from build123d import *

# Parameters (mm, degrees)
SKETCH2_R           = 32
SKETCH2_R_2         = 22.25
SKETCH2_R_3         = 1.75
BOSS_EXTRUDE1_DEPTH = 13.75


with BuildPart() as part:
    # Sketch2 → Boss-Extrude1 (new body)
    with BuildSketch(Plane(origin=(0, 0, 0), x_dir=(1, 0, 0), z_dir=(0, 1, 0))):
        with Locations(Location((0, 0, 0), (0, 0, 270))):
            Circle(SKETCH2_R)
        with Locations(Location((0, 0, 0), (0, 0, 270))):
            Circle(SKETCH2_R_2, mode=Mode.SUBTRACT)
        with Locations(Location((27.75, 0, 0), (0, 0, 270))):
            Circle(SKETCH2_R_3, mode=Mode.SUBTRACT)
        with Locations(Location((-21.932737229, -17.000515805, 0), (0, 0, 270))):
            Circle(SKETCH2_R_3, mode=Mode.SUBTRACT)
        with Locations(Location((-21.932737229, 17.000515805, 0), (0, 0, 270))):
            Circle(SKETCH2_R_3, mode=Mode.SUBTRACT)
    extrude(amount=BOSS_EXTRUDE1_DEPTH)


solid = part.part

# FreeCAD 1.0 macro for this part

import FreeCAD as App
import Part
import Sketcher
from FreeCAD import Vector
Q = App.Units.Quantity

doc = App.newDocument("Part")
body = doc.addObject("PartDesign::Body", "Body")

sketch1 = doc.addObject("Sketcher::SketchObject", "Sketch")
body.addObject(sketch1)
sketch1.AttachmentSupport = (doc.XZ_Plane, [""])
sketch1.MapMode = "FlatFace"
sketch1.addGeometry(Part.Circle(Vector(0, 0, 0), Vector(0, 0, 1), 32), False)
sketch1.addGeometry(Part.Circle(Vector(-21.9, -17, 0), Vector(0, 0, 1), 1.8), False)
sketch1.addGeometry(Part.Circle(Vector(-21.9, 17, 0), Vector(0, 0, 1), 1.8), False)
sketch1.addGeometry(Part.Circle(Vector(0, 0, 0), Vector(0, 0, 1), 22.2), False)
sketch1.addGeometry(Part.Circle(Vector(27.8, 0, 0), Vector(0, 0, 1), 1.8), False)
sketch1.addConstraint(Sketcher.Constraint("Coincident", 0, 3, -1, 1))
sketch1.addConstraint(Sketcher.Constraint("Coincident", 3, 3, -1, 1))
sketch1.addConstraint(Sketcher.Constraint("Equal", 1, 2))
sketch1.addConstraint(Sketcher.Constraint("Equal", 2, 4))
sketch1.addConstraint(Sketcher.Constraint("Symmetric", 1, 3, 2, 3, -1))
sketch1.addConstraint(Sketcher.Constraint("PointOnObject", 4, 3, -1))
sketch1.addConstraint(Sketcher.Constraint("Diameter", 0, Q("64 mm")))
sketch1.addConstraint(Sketcher.Constraint("Diameter", 1, Q("3.5 mm")))
sketch1.addConstraint(Sketcher.Constraint("Diameter", 3, Q("44.5 mm")))
sketch1.addConstraint(Sketcher.Constraint("DistanceX", -1, 1, 4, 3, Q("27.75 mm")))
sketch1.addConstraint(Sketcher.Constraint("DistanceY", 1, 3, 2, 3, Q("34.001032 mm")))
sketch1.addConstraint(Sketcher.Constraint("DistanceX", 1, 3, -1, 1, Q("21.932737 mm")))
pad1 = doc.addObject("PartDesign::Pad", "Pad")
body.addObject(pad1)
pad1.Profile = sketch1
pad1.Length = 13.75
pad1.Reversed = True

doc.recompute()
